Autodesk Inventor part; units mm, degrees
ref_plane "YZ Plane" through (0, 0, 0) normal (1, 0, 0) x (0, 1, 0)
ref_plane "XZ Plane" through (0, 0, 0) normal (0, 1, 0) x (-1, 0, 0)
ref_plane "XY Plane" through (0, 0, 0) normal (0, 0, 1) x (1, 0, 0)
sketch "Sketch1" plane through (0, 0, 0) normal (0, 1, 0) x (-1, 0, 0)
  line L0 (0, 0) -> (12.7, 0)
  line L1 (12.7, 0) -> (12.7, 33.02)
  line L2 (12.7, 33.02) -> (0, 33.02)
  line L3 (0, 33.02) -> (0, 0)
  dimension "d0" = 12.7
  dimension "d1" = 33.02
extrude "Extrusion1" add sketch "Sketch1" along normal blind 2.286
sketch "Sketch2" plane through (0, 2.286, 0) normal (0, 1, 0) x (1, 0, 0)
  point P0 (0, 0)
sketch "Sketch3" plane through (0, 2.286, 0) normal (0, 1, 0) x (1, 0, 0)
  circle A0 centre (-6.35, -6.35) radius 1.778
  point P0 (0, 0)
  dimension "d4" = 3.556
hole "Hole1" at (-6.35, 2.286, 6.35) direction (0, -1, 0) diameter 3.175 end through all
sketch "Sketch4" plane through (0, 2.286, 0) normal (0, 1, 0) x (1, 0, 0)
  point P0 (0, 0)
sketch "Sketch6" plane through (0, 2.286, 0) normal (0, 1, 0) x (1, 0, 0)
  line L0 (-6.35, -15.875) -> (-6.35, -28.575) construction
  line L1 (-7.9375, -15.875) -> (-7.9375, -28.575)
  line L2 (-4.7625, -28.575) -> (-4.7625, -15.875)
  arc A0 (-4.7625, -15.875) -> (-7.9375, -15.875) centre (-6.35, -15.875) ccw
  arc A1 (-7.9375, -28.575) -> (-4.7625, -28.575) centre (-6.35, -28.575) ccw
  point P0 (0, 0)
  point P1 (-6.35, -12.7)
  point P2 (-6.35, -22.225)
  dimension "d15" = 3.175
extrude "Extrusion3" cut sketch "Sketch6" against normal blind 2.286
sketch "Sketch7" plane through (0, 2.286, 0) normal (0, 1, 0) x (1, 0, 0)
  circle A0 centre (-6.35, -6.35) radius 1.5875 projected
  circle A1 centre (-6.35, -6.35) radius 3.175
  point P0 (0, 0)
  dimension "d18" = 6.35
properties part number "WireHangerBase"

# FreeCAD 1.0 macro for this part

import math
import FreeCAD as App
import Part
import Sketcher
from FreeCAD import Vector
Q = App.Units.Quantity


def add_polygon(sketch, points):
    """Adds a closed chain of lines whose ends are joined by coincident constraints."""
    first, n = sketch.GeometryCount, len(points)
    for a, b in zip(points, points[1:] + points[:1]):
        sketch.addGeometry(Part.LineSegment(App.Vector(*a, 0), App.Vector(*b, 0)), False)
    for i in range(n):
        sketch.addConstraint(Sketcher.Constraint("Coincident", first + i, 2, first + (i + 1) % n, 1))

doc = App.newDocument("Part")
body = doc.addObject("PartDesign::Body", "Body")

sketch1 = doc.addObject("Sketcher::SketchObject", "Sketch")
body.addObject(sketch1)
sketch1.AttachmentSupport = (doc.XZ_Plane, [""])
sketch1.MapMode = "FlatFace"
add_polygon(sketch1, [(0, 33), (0, 0), (-13, 0), (-13, 33)])
sketch1.addConstraint([
    Sketcher.Constraint("Vertical", 0),
    Sketcher.Constraint("Horizontal", 1),
    Sketcher.Constraint("Vertical", 2),
    Sketcher.Constraint("Horizontal", 3),
    Sketcher.Constraint("Coincident", 0, 2, -1, 1),
    Sketcher.Constraint("DistanceX", 1, 2, 1, 1, Q("0.5 in")),
    Sketcher.Constraint("DistanceY", 0, 2, 0, 1, Q("1.3 in")),
])
pad1 = doc.addObject("PartDesign::Pad", "Pad")
body.addObject(pad1)
pad1.Profile = sketch1
pad1.Length = Q("0.09 in")
pad1.Reversed = True

sketch2 = doc.addObject("Sketcher::SketchObject", "Sketch001")
body.addObject(sketch2)
sketch2.AttachmentSupport = (doc.XZ_Plane, [""])
sketch2.MapMode = "FlatFace"
sketch2.AttachmentOffset = App.Placement(Vector(0, 0, -0.09 * 25.4), App.Rotation())
sketch2.addGeometry(Part.Circle(Vector(-6.3, 6.3, 0), Vector(0, 0, 1), 1.6), False)
sketch2.addConstraint([
    Sketcher.Constraint("Diameter", 0, Q("0.125 in")),
    Sketcher.Constraint("DistanceX", 0, 3, -1, 1, Q("0.25 in")),
    Sketcher.Constraint("DistanceY", -1, 1, 0, 3, Q("0.25 in")),
])
doc.recompute()
hole = doc.addObject("PartDesign::Hole", "Hole")
body.addObject(hole)
hole.Profile = sketch2
hole.ThreadType = "None"
hole.Diameter = Q("0.125 in")
hole.DepthType = "ThroughAll"
hole.Reversed = True

sketch3 = doc.addObject("Sketcher::SketchObject", "Sketch002")
body.addObject(sketch3)
sketch3.AttachmentSupport = (doc.XZ_Plane, [""])
sketch3.MapMode = "FlatFace"
sketch3.AttachmentOffset = App.Placement(Vector(0, 0, -0.09 * 25.4), App.Rotation())
sketch3.addGeometry([
    Part.ArcOfCircle(Part.Circle(Vector(-6.3, 15.9, 0), Vector(0, 0, 1), 1.6), math.radians(180), math.radians(360)),
    Part.LineSegment(Vector(-7.9, 15.9, 0), Vector(-7.9, 28.6, 0)),
    Part.ArcOfCircle(Part.Circle(Vector(-6.3, 28.6, 0), Vector(0, 0, 1), 1.6), math.radians(0), math.radians(180)),
    Part.LineSegment(Vector(-4.8, 28.6, 0), Vector(-4.8, 15.9, 0)),
], False)
sketch3.addConstraint([
    Sketcher.Constraint("Tangent", 0, 1, 1, 1),
    Sketcher.Constraint("Tangent", 1, 2, 2, 2),
    Sketcher.Constraint("Tangent", 2, 1, 3, 1),
    Sketcher.Constraint("Tangent", 3, 2, 0, 2),
    Sketcher.Constraint("Vertical", 1),
    Sketcher.Constraint("Vertical", 3),
    Sketcher.Constraint("Radius", 0, Q("0.0625 in")),
    Sketcher.Constraint("DistanceY", 1, 1, 1, 2, Q("0.5 in")),
    Sketcher.Constraint("DistanceX", 0, 3, -1, 1, Q("0.25 in")),
    Sketcher.Constraint("DistanceY", -1, 1, 0, 3, Q("0.625 in")),
])
pocket1 = doc.addObject("PartDesign::Pocket", "Pocket")
body.addObject(pocket1)
pocket1.Profile = sketch3
pocket1.Length = Q("0.09 in")
pocket1.Reversed = True

doc.recompute()
